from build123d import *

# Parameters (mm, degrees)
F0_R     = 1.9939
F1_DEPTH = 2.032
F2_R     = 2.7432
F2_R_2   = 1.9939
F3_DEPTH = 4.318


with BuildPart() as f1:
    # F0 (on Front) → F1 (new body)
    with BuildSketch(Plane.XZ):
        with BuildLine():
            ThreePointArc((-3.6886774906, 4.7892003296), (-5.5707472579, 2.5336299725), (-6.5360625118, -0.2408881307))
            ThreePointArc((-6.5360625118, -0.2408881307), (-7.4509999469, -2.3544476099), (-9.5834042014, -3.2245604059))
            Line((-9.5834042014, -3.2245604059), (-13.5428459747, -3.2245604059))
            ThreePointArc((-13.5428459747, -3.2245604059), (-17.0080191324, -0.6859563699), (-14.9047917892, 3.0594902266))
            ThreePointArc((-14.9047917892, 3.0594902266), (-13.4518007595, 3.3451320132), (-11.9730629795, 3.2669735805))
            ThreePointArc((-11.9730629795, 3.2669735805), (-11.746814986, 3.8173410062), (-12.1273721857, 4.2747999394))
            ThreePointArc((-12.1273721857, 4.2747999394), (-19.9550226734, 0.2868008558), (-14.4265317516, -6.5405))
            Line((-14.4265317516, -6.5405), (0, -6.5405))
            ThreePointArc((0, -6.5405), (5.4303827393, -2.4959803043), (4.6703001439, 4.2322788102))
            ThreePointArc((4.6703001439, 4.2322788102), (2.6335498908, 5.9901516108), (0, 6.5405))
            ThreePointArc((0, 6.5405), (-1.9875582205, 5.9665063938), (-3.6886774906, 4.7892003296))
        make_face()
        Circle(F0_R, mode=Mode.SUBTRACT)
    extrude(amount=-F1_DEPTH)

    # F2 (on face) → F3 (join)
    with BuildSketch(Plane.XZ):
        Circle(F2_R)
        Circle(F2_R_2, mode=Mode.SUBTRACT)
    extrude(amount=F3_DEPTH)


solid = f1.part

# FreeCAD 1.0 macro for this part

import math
import FreeCAD as App
import Part
import Sketcher
from FreeCAD import Vector
Q = App.Units.Quantity

doc = App.newDocument("Part")
params = doc.addObject("Spreadsheet::Sheet", "Params")
for row, (alias, value) in enumerate([
    ("sketch1_diameter", "0.157 in"),
    ("pad1_length", "0.08 in"),
    ("sketch2_diameter", "0.216 in"),
    ("sketch2_diameter2", "0.157 in"),
    ("pad2_length", "0.17 in"),
], start=1):
    params.set(f"A{row}", alias)
    params.set(f"B{row}", "=" + value)
    params.setAlias(f"B{row}", alias)

body = doc.addObject("PartDesign::Body", "Body")

sketch1 = doc.addObject("Sketcher::SketchObject", "Sketch")
body.addObject(sketch1)
sketch1.AttachmentSupport = (doc.XZ_Plane, [""])
sketch1.MapMode = "FlatFace"
sketch1.addGeometry([
    Part.ArcOfCircle(Part.Circle(Vector(1.558268, -1.501896, 0), Vector(0, 0, 1), 8.191968), math.radians(129.829028), math.radians(171.145126)),
    Part.ArcOfCircle(Part.Circle(Vector(-9.583404, -0.176539, 0), Vector(0, 0, 1), 3.048021), math.radians(-90), math.radians(-1.209698)),
    Part.LineSegment(Vector(-9.583404, -3.22456, 0), Vector(-13.542846, -3.22456, 0)),
    Part.ArcOfCircle(Part.Circle(Vector(-13.843, 0, 0), Vector(0, 0, 1), 3.2385), math.radians(109.139259), math.radians(275.317979)),
    Part.ArcOfCircle(Part.Circle(Vector(-13.027357, -2.652242, 0), Vector(0, 0, 1), 6.012375), math.radians(79.900745), math.radians(108.195592)),
    Part.ArcOfCircle(Part.Circle(Vector(-12.316984, 3.730042, 0), Vector(0, 0, 1), 0.576814), math.radians(-53.398698), math.radians(70.808708)),
    Part.ArcOfCircle(Part.Circle(Vector(-14.426532, -0.888468, 0), Vector(0, 0, 1), 5.652032), math.radians(65.996993), math.radians(270)),
    Part.LineSegment(Vector(-14.426532, -6.5405, 0), Vector(0, -6.5405, 0)),
    Part.ArcOfCircle(Part.Circle(Vector(-0.803988, 0.206793, 0), Vector(0, 0, 1), 6.795025), math.radians(-83.204839), math.radians(36.328684)),
    Part.ArcOfCircle(Part.Circle(Vector(0.252493, 1.172481, 0), Vector(0, 0, 1), 5.373954), math.radians(34.706689), math.radians(92.693013)),
    Part.ArcOfCircle(Part.Circle(Vector(0.760931, 0.177496, 0), Vector(0, 0, 1), 6.408341), math.radians(96.819434), math.radians(133.975162)),
    Part.Circle(Vector(0, 0, 0), Vector(0, 0, 1), 1.9939),
], False)
sketch1.addConstraint([
    Sketcher.Constraint("Coincident", 0, 2, 1, 2),
    Sketcher.Constraint("Coincident", 1, 1, 2, 1),
    Sketcher.Constraint("Coincident", 2, 2, 3, 2),
    Sketcher.Constraint("Coincident", 3, 1, 4, 2),
    Sketcher.Constraint("Coincident", 4, 1, 5, 1),
    Sketcher.Constraint("Coincident", 5, 2, 6, 1),
    Sketcher.Constraint("Coincident", 6, 2, 7, 1),
    Sketcher.Constraint("Coincident", 7, 2, 8, 1),
    Sketcher.Constraint("Coincident", 8, 2, 9, 1),
    Sketcher.Constraint("Coincident", 9, 2, 10, 1),
    Sketcher.Constraint("Coincident", 10, 2, 0, 1),
    Sketcher.Constraint("Horizontal", 2),
    Sketcher.Constraint("Horizontal", 7),
    Sketcher.Constraint("Coincident", 11, 3, -1, 1),
    Sketcher.Constraint("PointOnObject", 3, 3, -1),
    Sketcher.Constraint("PointOnObject", 7, 2, -2),
    Sketcher.Constraint("PointOnObject", 9, 2, -2),
    Sketcher.Constraint("Diameter", 11, Q("0.157 in")),
    Sketcher.Constraint("Radius", 3, Q("0.1275 in")),
    Sketcher.Constraint("DistanceX", 3, 3, -1, 1, Q("0.545 in")),
    Sketcher.Constraint("Radius", 1, 3.048021),
    Sketcher.Constraint("Radius", 10, 6.408341),
    Sketcher.Constraint("DistanceY", 6, 2, -1, 1, Q("0.2575 in")),
    Sketcher.Constraint("DistanceY", -1, 1, 9, 2, Q("0.2575 in")),
    Sketcher.Constraint("Radius", 0, 8.191968),
    Sketcher.Constraint("Radius", 4, 6.012375),
    Sketcher.Constraint("Radius", 5, 0.576814),
    Sketcher.Constraint("Radius", 6, 5.652032),
    Sketcher.Constraint("Radius", 8, 6.795025),
    Sketcher.Constraint("Radius", 9, 5.373954),
    Sketcher.Constraint("DistanceY", 6, 3, 4, 1, Q("0.1636001 in")),
    Sketcher.Constraint("DistanceX", 2, 2, 2, 1, 3.959442),
    Sketcher.Constraint("DistanceX", 7, 1, 7, 2, 14.426532),
    Sketcher.Constraint("DistanceY", -1, 1, 5, 2, 4.2748),
    Sketcher.Constraint("DistanceX", -1, 1, 8, 2, 4.6703),
    Sketcher.Constraint("DistanceY", -1, 1, 10, 2, 4.7892),
    Sketcher.Constraint("DistanceX", 6, 3, 0, 3, 15.9848),
    Sketcher.Constraint("DistanceX", -1, 1, 0, 3, 1.558268),
    Sketcher.Constraint("DistanceY", 1, 3, -1, 1, 0.176539),
    Sketcher.Constraint("DistanceY", -1, 1, 5, 3, 3.730042),
    Sketcher.Constraint("DistanceX", 8, 3, -1, 1, 0.803988),
    Sketcher.Constraint("DistanceX", -1, 1, 10, 3, 0.760931),
    Sketcher.Constraint("DistanceY", 0, 2, -1, 1, 0.240888),
    Sketcher.Constraint("DistanceX", 3, 1, -1, 1, 14.904792),
])
sketch1.setExpression("Constraints[17]", "Params.sketch1_diameter")
pad1 = doc.addObject("PartDesign::Pad", "Pad")
body.addObject(pad1)
pad1.Profile = sketch1
pad1.setExpression("Length", "Params.pad1_length")
pad1.Reversed = True

sketch2 = doc.addObject("Sketcher::SketchObject", "Sketch001")
body.addObject(sketch2)
sketch2.AttachmentSupport = (doc.XZ_Plane, [""])
sketch2.MapMode = "FlatFace"
sketch2.addGeometry([
    Part.Circle(Vector(0, 0, 0), Vector(0, 0, 1), 2.7),
    Part.Circle(Vector(0, 0, 0), Vector(0, 0, 1), 2),
], False)
sketch2.addConstraint([
    Sketcher.Constraint("Coincident", 0, 3, -1, 1),
    Sketcher.Constraint("Coincident", 1, 3, -1, 1),
    Sketcher.Constraint("Diameter", 0, Q("0.216 in")),
    Sketcher.Constraint("Diameter", 1, Q("0.157 in")),
])
sketch2.setExpression("Constraints[2]", "Params.sketch2_diameter")
sketch2.setExpression("Constraints[3]", "Params.sketch2_diameter2")
pad2 = doc.addObject("PartDesign::Pad", "Pad001")
body.addObject(pad2)
pad2.Profile = sketch2
pad2.setExpression("Length", "Params.pad2_length")

doc.recompute()
